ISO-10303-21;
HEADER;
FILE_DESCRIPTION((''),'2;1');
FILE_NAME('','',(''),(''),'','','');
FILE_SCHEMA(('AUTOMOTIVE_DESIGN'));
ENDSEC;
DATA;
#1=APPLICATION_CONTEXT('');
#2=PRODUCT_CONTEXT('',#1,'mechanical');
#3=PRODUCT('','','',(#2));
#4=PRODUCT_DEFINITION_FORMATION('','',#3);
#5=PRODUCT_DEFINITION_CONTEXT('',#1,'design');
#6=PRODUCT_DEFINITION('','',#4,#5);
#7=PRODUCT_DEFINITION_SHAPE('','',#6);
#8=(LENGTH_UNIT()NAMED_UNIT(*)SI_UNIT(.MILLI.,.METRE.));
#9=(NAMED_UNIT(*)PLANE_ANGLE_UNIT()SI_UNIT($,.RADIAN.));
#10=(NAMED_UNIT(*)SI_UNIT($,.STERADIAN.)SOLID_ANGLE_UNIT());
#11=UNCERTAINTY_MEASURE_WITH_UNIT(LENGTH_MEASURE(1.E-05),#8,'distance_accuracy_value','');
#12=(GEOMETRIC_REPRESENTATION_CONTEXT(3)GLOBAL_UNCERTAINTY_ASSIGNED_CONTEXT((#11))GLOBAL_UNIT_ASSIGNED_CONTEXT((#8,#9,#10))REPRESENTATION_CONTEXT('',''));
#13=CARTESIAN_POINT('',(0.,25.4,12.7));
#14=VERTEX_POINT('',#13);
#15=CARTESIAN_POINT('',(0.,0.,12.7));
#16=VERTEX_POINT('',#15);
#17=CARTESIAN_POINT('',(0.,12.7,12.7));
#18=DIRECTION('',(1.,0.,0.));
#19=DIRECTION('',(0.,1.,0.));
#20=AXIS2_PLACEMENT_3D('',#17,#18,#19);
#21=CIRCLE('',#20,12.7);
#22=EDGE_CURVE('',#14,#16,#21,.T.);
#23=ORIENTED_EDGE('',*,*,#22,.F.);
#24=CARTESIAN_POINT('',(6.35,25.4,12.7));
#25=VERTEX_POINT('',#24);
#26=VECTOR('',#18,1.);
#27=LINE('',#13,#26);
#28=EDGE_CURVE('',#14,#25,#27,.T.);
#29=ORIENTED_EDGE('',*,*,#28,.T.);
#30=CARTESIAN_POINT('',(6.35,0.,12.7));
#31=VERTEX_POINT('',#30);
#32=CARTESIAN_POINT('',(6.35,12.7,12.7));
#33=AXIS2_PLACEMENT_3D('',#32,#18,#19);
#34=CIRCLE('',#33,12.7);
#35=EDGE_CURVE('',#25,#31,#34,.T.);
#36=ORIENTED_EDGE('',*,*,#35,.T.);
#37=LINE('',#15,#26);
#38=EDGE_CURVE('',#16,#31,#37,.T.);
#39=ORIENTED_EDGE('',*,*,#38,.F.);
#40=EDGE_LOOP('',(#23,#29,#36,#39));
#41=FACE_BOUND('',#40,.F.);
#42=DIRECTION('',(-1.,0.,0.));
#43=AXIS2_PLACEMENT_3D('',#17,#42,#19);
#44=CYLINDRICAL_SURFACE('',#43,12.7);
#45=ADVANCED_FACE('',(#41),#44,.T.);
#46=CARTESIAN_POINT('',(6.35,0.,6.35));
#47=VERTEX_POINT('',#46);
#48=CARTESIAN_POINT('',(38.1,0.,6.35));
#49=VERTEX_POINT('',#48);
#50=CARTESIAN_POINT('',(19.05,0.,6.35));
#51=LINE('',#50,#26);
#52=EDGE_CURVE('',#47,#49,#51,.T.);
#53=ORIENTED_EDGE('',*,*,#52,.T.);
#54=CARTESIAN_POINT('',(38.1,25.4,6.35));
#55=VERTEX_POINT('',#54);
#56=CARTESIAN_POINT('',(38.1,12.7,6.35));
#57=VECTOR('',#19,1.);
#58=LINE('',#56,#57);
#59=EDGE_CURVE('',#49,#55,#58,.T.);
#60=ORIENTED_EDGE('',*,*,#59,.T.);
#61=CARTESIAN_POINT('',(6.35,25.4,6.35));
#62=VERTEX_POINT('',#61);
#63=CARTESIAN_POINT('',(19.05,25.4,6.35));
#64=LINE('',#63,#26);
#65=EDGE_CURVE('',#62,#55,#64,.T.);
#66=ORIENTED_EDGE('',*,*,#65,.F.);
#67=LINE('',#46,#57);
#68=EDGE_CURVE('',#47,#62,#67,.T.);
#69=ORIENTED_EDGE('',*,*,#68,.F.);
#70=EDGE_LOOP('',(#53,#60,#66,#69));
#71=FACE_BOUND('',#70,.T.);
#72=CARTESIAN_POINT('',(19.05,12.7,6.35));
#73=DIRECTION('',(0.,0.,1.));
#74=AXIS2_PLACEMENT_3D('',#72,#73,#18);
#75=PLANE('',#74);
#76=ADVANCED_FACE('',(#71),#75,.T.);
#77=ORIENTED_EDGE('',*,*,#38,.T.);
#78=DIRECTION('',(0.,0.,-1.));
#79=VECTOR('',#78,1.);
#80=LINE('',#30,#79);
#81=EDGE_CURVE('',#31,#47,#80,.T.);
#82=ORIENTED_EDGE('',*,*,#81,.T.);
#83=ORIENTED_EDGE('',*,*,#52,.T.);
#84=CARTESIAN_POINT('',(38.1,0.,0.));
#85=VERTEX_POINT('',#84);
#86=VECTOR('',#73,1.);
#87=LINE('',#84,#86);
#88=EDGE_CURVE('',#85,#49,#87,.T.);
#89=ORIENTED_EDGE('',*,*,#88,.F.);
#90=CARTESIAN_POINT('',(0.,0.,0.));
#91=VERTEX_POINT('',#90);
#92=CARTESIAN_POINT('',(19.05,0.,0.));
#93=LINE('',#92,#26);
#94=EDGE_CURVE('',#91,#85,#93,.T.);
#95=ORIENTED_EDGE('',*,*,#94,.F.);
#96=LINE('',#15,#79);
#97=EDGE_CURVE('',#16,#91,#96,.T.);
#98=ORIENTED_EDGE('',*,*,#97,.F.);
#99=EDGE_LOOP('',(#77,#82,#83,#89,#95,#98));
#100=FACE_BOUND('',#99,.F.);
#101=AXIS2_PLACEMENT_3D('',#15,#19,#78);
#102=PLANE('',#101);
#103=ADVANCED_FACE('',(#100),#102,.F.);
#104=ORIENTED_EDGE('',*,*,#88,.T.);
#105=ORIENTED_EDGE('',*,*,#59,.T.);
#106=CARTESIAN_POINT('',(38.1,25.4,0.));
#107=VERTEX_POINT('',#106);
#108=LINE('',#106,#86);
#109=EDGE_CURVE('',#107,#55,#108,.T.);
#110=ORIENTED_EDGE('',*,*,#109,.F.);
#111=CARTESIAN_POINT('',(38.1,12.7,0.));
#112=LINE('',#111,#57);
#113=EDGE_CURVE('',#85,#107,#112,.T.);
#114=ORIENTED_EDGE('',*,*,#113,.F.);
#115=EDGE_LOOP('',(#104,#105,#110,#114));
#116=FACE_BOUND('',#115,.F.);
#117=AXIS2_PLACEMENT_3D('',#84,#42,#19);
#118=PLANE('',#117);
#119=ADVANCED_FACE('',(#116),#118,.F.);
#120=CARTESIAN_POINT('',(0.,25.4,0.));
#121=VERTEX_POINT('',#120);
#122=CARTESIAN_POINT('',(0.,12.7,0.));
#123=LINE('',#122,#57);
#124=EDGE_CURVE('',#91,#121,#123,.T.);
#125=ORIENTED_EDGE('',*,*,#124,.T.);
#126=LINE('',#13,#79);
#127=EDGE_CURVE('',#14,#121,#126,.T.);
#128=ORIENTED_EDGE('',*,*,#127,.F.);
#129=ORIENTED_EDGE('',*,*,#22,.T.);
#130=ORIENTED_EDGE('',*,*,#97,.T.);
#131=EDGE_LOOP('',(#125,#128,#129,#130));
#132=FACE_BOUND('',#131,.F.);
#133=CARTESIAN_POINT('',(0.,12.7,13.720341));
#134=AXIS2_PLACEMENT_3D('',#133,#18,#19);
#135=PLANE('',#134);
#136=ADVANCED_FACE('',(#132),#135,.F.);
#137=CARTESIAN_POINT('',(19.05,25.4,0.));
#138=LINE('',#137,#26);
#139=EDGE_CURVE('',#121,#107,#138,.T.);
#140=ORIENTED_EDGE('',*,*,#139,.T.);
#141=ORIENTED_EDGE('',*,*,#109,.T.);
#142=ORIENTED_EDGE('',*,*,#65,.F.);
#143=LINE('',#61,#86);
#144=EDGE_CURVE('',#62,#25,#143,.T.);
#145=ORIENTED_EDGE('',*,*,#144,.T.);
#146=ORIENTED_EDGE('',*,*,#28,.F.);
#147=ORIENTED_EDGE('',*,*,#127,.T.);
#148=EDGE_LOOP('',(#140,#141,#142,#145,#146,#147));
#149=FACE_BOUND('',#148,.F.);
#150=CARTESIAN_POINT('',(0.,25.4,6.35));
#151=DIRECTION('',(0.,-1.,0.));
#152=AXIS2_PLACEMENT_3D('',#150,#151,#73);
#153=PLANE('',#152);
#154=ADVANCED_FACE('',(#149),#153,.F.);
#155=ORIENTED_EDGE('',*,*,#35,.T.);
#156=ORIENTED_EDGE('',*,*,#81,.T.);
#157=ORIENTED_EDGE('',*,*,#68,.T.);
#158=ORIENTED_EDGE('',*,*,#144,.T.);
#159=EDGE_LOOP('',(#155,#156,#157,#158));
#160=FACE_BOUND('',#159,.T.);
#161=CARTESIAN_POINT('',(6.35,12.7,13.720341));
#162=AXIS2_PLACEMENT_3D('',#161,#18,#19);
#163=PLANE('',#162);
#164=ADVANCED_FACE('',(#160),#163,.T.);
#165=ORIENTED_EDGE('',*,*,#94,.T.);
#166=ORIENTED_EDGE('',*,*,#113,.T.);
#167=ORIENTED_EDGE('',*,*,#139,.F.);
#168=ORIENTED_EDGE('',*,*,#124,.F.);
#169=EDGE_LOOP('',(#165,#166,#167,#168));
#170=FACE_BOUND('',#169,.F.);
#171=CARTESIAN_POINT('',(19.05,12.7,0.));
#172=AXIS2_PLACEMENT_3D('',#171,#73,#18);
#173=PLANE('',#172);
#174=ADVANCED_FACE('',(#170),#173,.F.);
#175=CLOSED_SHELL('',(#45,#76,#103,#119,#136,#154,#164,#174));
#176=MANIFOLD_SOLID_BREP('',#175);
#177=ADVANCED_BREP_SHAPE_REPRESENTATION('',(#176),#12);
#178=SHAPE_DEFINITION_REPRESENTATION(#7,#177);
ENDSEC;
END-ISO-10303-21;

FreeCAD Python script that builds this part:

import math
import FreeCAD as App
import Part
import Sketcher
from FreeCAD import Vector
Q = App.Units.Quantity


def add_polygon(sketch, points):
    """Adds a closed chain of lines whose ends are joined by coincident constraints."""
    first, n = sketch.GeometryCount, len(points)
    for a, b in zip(points, points[1:] + points[:1]):
        sketch.addGeometry(Part.LineSegment(App.Vector(*a, 0), App.Vector(*b, 0)), False)
    for i in range(n):
        sketch.addConstraint(Sketcher.Constraint("Coincident", first + i, 2, first + (i + 1) % n, 1))

doc = App.newDocument("Part")
body = doc.addObject("PartDesign::Body", "Body")

sketch1 = body.newObject("Sketcher::SketchObject", "Sketch")
sketch1.AttachmentSupport = (doc.getObject("XY_Plane"), [""])
sketch1.MapMode = "FlatFace"
add_polygon(sketch1, [(0, 25), (0, 0), (38, 0), (38, 25)])
sketch1.addConstraint([
    Sketcher.Constraint("Vertical", 0),
    Sketcher.Constraint("Horizontal", 1),
    Sketcher.Constraint("Vertical", 2),
    Sketcher.Constraint("Horizontal", 3),
    Sketcher.Constraint("Coincident", 0, 2, -1, 1),
    Sketcher.Constraint("DistanceY", 0, 2, 0, 1, Q("1 in")),
    Sketcher.Constraint("DistanceX", 1, 1, 1, 2, Q("1.5 in")),
])
pad1 = body.newObject("PartDesign::Pad", "Pad")
pad1.Profile = sketch1
pad1.Length = Q("0.25 in")

sketch2 = body.newObject("Sketcher::SketchObject", "Sketch001")
sketch2.AttachmentSupport = (doc.getObject("YZ_Plane"), [""])
sketch2.MapMode = "FlatFace"
sketch2.addGeometry([
    Part.LineSegment(Vector(0, 13, 0), Vector(0, 6, 0)),
    Part.LineSegment(Vector(0, 6, 0), Vector(25, 6, 0)),
    Part.LineSegment(Vector(25, 6, 0), Vector(25, 13, 0)),
    Part.ArcOfCircle(Part.Circle(Vector(13, 13, 0), Vector(0, 0, 1), 13), math.radians(0), math.radians(180)),
], False)
sketch2.addConstraint([
    Sketcher.Constraint("Coincident", 0, 2, 1, 1),
    Sketcher.Constraint("Coincident", 1, 2, 2, 1),
    Sketcher.Constraint("Tangent", 2, 2, 3, 1),
    Sketcher.Constraint("Tangent", 3, 2, 0, 1),
    Sketcher.Constraint("Vertical", 0),
    Sketcher.Constraint("Horizontal", 1),
    Sketcher.Constraint("Vertical", 2),
    Sketcher.Constraint("PointOnObject", 0, 2, -2),
    Sketcher.Constraint("Radius", 3, Q("0.5 in")),
    Sketcher.Constraint("DistanceY", 0, 2, 0, 1, Q("0.25 in")),
    Sketcher.Constraint("DistanceY", -1, 1, 3, 3, Q("0.5 in")),
])
pad2 = body.newObject("PartDesign::Pad", "Pad001")
pad2.Profile = sketch2
pad2.Length = Q("0.25 in")

doc.recompute()
